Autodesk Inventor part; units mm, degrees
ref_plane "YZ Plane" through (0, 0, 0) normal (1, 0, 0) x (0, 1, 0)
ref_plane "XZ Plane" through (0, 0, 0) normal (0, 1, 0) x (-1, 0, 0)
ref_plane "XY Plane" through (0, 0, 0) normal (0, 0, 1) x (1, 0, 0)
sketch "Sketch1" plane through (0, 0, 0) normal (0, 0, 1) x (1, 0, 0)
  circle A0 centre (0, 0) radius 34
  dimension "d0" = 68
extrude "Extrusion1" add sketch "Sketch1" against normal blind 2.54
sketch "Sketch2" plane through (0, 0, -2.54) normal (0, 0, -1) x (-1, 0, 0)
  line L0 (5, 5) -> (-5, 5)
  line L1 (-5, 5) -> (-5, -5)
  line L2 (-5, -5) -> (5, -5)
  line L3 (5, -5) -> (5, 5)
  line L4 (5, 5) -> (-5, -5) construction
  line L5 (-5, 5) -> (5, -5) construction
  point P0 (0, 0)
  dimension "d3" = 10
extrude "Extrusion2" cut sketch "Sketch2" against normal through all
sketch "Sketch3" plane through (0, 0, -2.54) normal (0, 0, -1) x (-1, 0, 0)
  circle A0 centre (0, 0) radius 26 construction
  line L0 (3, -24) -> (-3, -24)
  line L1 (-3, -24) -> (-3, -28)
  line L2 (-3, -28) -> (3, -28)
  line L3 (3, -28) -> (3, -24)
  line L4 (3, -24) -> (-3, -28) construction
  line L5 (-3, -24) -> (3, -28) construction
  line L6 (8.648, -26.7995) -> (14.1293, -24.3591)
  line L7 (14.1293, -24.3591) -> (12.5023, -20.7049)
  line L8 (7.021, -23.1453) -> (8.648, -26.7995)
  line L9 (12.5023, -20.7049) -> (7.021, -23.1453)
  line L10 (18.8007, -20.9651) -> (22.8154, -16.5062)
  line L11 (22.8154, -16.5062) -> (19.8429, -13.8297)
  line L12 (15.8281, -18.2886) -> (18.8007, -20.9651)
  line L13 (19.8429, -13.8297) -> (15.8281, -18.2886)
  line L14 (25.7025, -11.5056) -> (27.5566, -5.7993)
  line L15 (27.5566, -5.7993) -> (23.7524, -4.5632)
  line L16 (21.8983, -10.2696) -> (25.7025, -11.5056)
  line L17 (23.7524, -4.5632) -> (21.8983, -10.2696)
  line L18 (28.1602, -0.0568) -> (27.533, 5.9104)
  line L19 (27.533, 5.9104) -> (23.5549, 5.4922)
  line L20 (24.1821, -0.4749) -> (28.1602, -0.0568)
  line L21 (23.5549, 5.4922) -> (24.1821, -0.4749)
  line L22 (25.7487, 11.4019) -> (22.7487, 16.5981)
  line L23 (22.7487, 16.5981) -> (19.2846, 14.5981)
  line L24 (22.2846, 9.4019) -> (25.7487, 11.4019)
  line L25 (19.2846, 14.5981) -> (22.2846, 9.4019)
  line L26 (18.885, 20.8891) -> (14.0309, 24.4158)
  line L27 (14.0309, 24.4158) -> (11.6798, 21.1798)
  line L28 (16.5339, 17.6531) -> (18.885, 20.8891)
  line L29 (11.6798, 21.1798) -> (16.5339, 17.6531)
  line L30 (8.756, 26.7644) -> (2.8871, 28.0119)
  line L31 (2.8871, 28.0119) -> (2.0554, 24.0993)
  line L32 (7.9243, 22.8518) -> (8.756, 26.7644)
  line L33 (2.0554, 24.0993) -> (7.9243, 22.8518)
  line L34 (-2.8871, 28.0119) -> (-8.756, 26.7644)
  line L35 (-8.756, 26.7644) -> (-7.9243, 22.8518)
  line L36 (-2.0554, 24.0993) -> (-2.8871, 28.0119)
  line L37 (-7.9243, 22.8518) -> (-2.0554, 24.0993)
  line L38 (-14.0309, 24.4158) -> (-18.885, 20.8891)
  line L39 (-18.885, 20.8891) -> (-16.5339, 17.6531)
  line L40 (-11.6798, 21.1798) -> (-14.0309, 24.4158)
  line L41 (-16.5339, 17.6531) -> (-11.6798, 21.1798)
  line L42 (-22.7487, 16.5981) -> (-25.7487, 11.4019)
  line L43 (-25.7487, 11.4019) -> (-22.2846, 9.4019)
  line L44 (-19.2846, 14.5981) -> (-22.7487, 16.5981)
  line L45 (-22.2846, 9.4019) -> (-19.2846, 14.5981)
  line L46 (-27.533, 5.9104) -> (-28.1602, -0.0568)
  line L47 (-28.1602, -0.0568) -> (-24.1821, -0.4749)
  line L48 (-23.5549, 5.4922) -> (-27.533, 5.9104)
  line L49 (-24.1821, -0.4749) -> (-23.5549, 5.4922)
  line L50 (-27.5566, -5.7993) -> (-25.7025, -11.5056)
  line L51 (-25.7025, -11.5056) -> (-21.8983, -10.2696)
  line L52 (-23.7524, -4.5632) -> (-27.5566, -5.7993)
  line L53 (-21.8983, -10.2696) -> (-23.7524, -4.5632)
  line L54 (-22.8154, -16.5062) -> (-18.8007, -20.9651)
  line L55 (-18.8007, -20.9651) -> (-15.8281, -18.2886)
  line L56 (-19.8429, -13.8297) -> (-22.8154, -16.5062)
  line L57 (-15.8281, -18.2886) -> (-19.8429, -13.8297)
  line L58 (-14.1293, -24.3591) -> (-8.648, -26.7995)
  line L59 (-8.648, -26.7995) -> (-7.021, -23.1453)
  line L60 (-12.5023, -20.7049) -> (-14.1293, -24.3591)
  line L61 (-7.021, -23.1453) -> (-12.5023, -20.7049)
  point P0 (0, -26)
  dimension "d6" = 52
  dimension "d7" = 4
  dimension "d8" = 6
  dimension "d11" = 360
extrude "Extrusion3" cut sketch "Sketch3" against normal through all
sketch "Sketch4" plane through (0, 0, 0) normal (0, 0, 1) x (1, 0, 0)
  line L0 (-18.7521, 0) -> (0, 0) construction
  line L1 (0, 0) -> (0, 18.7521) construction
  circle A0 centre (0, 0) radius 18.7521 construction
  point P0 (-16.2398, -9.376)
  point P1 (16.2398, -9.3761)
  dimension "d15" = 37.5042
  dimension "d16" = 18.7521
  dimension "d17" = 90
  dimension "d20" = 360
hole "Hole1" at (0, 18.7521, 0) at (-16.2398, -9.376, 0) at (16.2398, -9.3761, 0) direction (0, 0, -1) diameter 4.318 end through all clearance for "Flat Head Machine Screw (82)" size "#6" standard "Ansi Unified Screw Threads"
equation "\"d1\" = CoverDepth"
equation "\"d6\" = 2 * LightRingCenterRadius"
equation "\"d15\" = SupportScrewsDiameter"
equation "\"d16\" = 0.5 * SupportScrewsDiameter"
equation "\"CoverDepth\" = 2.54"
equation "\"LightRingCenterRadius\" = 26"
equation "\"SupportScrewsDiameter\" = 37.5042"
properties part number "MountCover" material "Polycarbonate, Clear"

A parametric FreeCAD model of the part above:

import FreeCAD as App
import Part
import Sketcher
from FreeCAD import Vector
Q = App.Units.Quantity

doc = App.newDocument("Part")
params = doc.addObject("Spreadsheet::Sheet", "Params")
for row, (alias, value) in enumerate([
    ("sketch1_diameter", "68 mm"),
    ("pad1_length", "2.54 mm"),
    ("sketch2_width", "10 mm"),
    ("sketch3_width", "6 mm"),
    ("sketch3_height", "4 mm"),
    ("sketch3_length", "4 mm"),
    ("sketch3_length2", "6 mm"),
    ("hole_diameter", "4.318 mm"),
], start=1):
    params.set(f"A{row}", alias)
    params.set(f"B{row}", "=" + value)
    params.setAlias(f"B{row}", alias)

body = doc.addObject("PartDesign::Body", "Body")

# Sketch on XY plane
sketch1 = doc.addObject("Sketcher::SketchObject", "Sketch")
body.addObject(sketch1)
sketch1.AttachmentSupport = (doc.XY_Plane, [""])
sketch1.MapMode = "FlatFace"
sketch1.addGeometry(Part.Circle(Vector(0, 0, 0), Vector(0, 0, 1), 34), False)
sketch1.addConstraint([
    Sketcher.Constraint("Coincident", 0, 3, -1, 1),
    Sketcher.Constraint("Diameter", 0, 68.0),
])
sketch1.setExpression("Constraints[1]", "Params.sketch1_diameter")
pad1 = doc.addObject("PartDesign::Pad", "Pad")
body.addObject(pad1)
pad1.Profile = sketch1
pad1.setExpression("Length", "Params.pad1_length")
pad1.Reversed = True

# Sketch on XY plane
sketch2 = doc.addObject("Sketcher::SketchObject", "Sketch001")
body.addObject(sketch2)
sketch2.AttachmentSupport = (doc.XY_Plane, [""])
sketch2.MapMode = "FlatFace"
sketch2.AttachmentOffset = App.Placement(Vector(0, 0, -2.54), App.Rotation())
sketch2.addGeometry([
    Part.LineSegment(Vector(-5, -5, 0), Vector(-5, 5, 0)),
    Part.LineSegment(Vector(-5, 5, 0), Vector(5, 5, 0)),
    Part.LineSegment(Vector(5, 5, 0), Vector(5, -5, 0)),
    Part.LineSegment(Vector(5, -5, 0), Vector(-5, -5, 0)),
], False)
sketch2.addConstraint([
    Sketcher.Constraint("Coincident", 0, 2, 1, 1),
    Sketcher.Constraint("Coincident", 1, 2, 2, 1),
    Sketcher.Constraint("Coincident", 2, 2, 3, 1),
    Sketcher.Constraint("Coincident", 3, 2, 0, 1),
    Sketcher.Constraint("Vertical", 0),
    Sketcher.Constraint("Horizontal", 1),
    Sketcher.Constraint("Vertical", 2),
    Sketcher.Constraint("Horizontal", 3),
    Sketcher.Constraint("Symmetric", 0, 2, 2, 2, -1, 1),
    Sketcher.Constraint("Equal", 3, 0),
    Sketcher.Constraint("DistanceX", 1, 1, 1, 2, 10.0),
])
sketch2.setExpression("Constraints[10]", "Params.sketch2_width")
pocket1 = doc.addObject("PartDesign::Pocket", "Pocket")
body.addObject(pocket1)
pocket1.Profile = sketch2
pocket1.Type = "ThroughAll"
pocket1.Reversed = True

# Sketch on XY plane
sketch3 = doc.addObject("Sketcher::SketchObject", "Sketch002")
body.addObject(sketch3)
sketch3.AttachmentSupport = (doc.XY_Plane, [""])
sketch3.MapMode = "FlatFace"
sketch3.AttachmentOffset = App.Placement(Vector(0, 0, -2.54), App.Rotation())
sketch3.addGeometry([
    Part.LineSegment(Vector(-3, -28, 0), Vector(-3, -24, 0)),  # 0
    Part.LineSegment(Vector(-3, -24, 0), Vector(3, -24, 0)),  # 1
    Part.LineSegment(Vector(3, -24, 0), Vector(3, -28, 0)),  # 2
    Part.LineSegment(Vector(3, -28, 0), Vector(-3, -28, 0)),  # 3
    Part.LineSegment(Vector(-7, -23.1, 0), Vector(-8.6, -26.8, 0)),  # 4
    Part.LineSegment(Vector(-8.6, -26.8, 0), Vector(-14.1, -24.4, 0)),  # 5
    Part.LineSegment(Vector(-14.1, -24.4, 0), Vector(-12.5, -20.7, 0)),  # 6
    Part.LineSegment(Vector(-12.5, -20.7, 0), Vector(-7, -23.1, 0)),  # 7
    Part.LineSegment(Vector(-15.8, -18.3, 0), Vector(-18.8, -21, 0)),  # 8
    Part.LineSegment(Vector(-18.8, -21, 0), Vector(-22.8, -16.5, 0)),  # 9
    Part.LineSegment(Vector(-22.8, -16.5, 0), Vector(-19.8, -13.8, 0)),  # 10
    Part.LineSegment(Vector(-19.8, -13.8, 0), Vector(-15.8, -18.3, 0)),  # 11
    Part.LineSegment(Vector(-21.9, -10.3, 0), Vector(-25.7, -11.5, 0)),  # 12
    Part.LineSegment(Vector(-25.7, -11.5, 0), Vector(-27.6, -5.8, 0)),  # 13
    Part.LineSegment(Vector(-27.6, -5.8, 0), Vector(-23.8, -4.6, 0)),  # 14
    Part.LineSegment(Vector(-23.8, -4.6, 0), Vector(-21.9, -10.3, 0)),  # 15
    Part.LineSegment(Vector(-24.2, -0.5, 0), Vector(-28.2, -0.1, 0)),  # 16
    Part.LineSegment(Vector(-28.2, -0.1, 0), Vector(-27.5, 5.9, 0)),  # 17
    Part.LineSegment(Vector(-27.5, 5.9, 0), Vector(-23.6, 5.5, 0)),  # 18
    Part.LineSegment(Vector(-23.6, 5.5, 0), Vector(-24.2, -0.5, 0)),  # 19
    Part.LineSegment(Vector(-22.3, 9.4, 0), Vector(-25.7, 11.4, 0)),  # 20
    Part.LineSegment(Vector(-25.7, 11.4, 0), Vector(-22.7, 16.6, 0)),  # 21
    Part.LineSegment(Vector(-22.7, 16.6, 0), Vector(-19.3, 14.6, 0)),  # 22
    Part.LineSegment(Vector(-19.3, 14.6, 0), Vector(-22.3, 9.4, 0)),  # 23
    Part.LineSegment(Vector(-16.5, 17.7, 0), Vector(-18.9, 20.9, 0)),  # 24
    Part.LineSegment(Vector(-18.9, 20.9, 0), Vector(-14, 24.4, 0)),  # 25
    Part.LineSegment(Vector(-14, 24.4, 0), Vector(-11.7, 21.2, 0)),  # 26
    Part.LineSegment(Vector(-11.7, 21.2, 0), Vector(-16.5, 17.7, 0)),  # 27
    Part.LineSegment(Vector(-7.9, 22.9, 0), Vector(-8.8, 26.8, 0)),  # 28
    Part.LineSegment(Vector(-8.8, 26.8, 0), Vector(-2.9, 28, 0)),  # 29
    Part.LineSegment(Vector(-2.9, 28, 0), Vector(-2.1, 24.1, 0)),  # 30
    Part.LineSegment(Vector(-2.1, 24.1, 0), Vector(-7.9, 22.9, 0)),  # 31
    Part.LineSegment(Vector(2.1, 24.1, 0), Vector(2.9, 28, 0)),  # 32
    Part.LineSegment(Vector(2.9, 28, 0), Vector(8.8, 26.8, 0)),  # 33
    Part.LineSegment(Vector(8.8, 26.8, 0), Vector(7.9, 22.9, 0)),  # 34
    Part.LineSegment(Vector(7.9, 22.9, 0), Vector(2.1, 24.1, 0)),  # 35
    Part.LineSegment(Vector(11.7, 21.2, 0), Vector(14, 24.4, 0)),  # 36
    Part.LineSegment(Vector(14, 24.4, 0), Vector(18.9, 20.9, 0)),  # 37
    Part.LineSegment(Vector(18.9, 20.9, 0), Vector(16.5, 17.7, 0)),  # 38
    Part.LineSegment(Vector(16.5, 17.7, 0), Vector(11.7, 21.2, 0)),  # 39
    Part.LineSegment(Vector(19.3, 14.6, 0), Vector(22.7, 16.6, 0)),  # 40
    Part.LineSegment(Vector(22.7, 16.6, 0), Vector(25.7, 11.4, 0)),  # 41
    Part.LineSegment(Vector(25.7, 11.4, 0), Vector(22.3, 9.4, 0)),  # 42
    Part.LineSegment(Vector(22.3, 9.4, 0), Vector(19.3, 14.6, 0)),  # 43
    Part.LineSegment(Vector(23.6, 5.5, 0), Vector(27.5, 5.9, 0)),  # 44
    Part.LineSegment(Vector(27.5, 5.9, 0), Vector(28.2, -0.1, 0)),  # 45
    Part.LineSegment(Vector(28.2, -0.1, 0), Vector(24.2, -0.5, 0)),  # 46
    Part.LineSegment(Vector(24.2, -0.5, 0), Vector(23.6, 5.5, 0)),  # 47
    Part.LineSegment(Vector(23.8, -4.6, 0), Vector(27.6, -5.8, 0)),  # 48
    Part.LineSegment(Vector(27.6, -5.8, 0), Vector(25.7, -11.5, 0)),  # 49
    Part.LineSegment(Vector(25.7, -11.5, 0), Vector(21.9, -10.3, 0)),  # 50
    Part.LineSegment(Vector(21.9, -10.3, 0), Vector(23.8, -4.6, 0)),  # 51
    Part.LineSegment(Vector(19.8, -13.8, 0), Vector(22.8, -16.5, 0)),  # 52
    Part.LineSegment(Vector(22.8, -16.5, 0), Vector(18.8, -21, 0)),  # 53
    Part.LineSegment(Vector(18.8, -21, 0), Vector(15.8, -18.3, 0)),  # 54
    Part.LineSegment(Vector(15.8, -18.3, 0), Vector(19.8, -13.8, 0)),  # 55
    Part.LineSegment(Vector(12.5, -20.7, 0), Vector(14.1, -24.4, 0)),  # 56
    Part.LineSegment(Vector(14.1, -24.4, 0), Vector(8.6, -26.8, 0)),  # 57
    Part.LineSegment(Vector(8.6, -26.8, 0), Vector(7, -23.1, 0)),  # 58
    Part.LineSegment(Vector(7, -23.1, 0), Vector(12.5, -20.7, 0)),  # 59
], False)
sketch3.addConstraint([
    Sketcher.Constraint("Coincident", 0, 2, 1, 1),
    Sketcher.Constraint("Coincident", 1, 2, 2, 1),
    Sketcher.Constraint("Coincident", 2, 2, 3, 1),
    Sketcher.Constraint("Coincident", 3, 2, 0, 1),
    Sketcher.Constraint("Coincident", 4, 2, 5, 1),
    Sketcher.Constraint("Coincident", 5, 2, 6, 1),
    Sketcher.Constraint("Coincident", 6, 2, 7, 1),
    Sketcher.Constraint("Coincident", 7, 2, 4, 1),
    Sketcher.Constraint("Coincident", 8, 2, 9, 1),
    Sketcher.Constraint("Coincident", 9, 2, 10, 1),
    Sketcher.Constraint("Coincident", 10, 2, 11, 1),
    Sketcher.Constraint("Coincident", 11, 2, 8, 1),
    Sketcher.Constraint("Coincident", 12, 2, 13, 1),
    Sketcher.Constraint("Coincident", 13, 2, 14, 1),
    Sketcher.Constraint("Coincident", 14, 2, 15, 1),
    Sketcher.Constraint("Coincident", 15, 2, 12, 1),
    Sketcher.Constraint("Coincident", 16, 2, 17, 1),
    Sketcher.Constraint("Coincident", 17, 2, 18, 1),
    Sketcher.Constraint("Coincident", 18, 2, 19, 1),
    Sketcher.Constraint("Coincident", 19, 2, 16, 1),
    Sketcher.Constraint("Coincident", 20, 2, 21, 1),
    Sketcher.Constraint("Coincident", 21, 2, 22, 1),
    Sketcher.Constraint("Coincident", 22, 2, 23, 1),
    Sketcher.Constraint("Coincident", 23, 2, 20, 1),
    Sketcher.Constraint("Coincident", 24, 2, 25, 1),
    Sketcher.Constraint("Coincident", 25, 2, 26, 1),
    Sketcher.Constraint("Coincident", 26, 2, 27, 1),
    Sketcher.Constraint("Coincident", 27, 2, 24, 1),
    Sketcher.Constraint("Coincident", 28, 2, 29, 1),
    Sketcher.Constraint("Coincident", 29, 2, 30, 1),
    Sketcher.Constraint("Coincident", 30, 2, 31, 1),
    Sketcher.Constraint("Coincident", 31, 2, 28, 1),
    Sketcher.Constraint("Coincident", 32, 2, 33, 1),
    Sketcher.Constraint("Coincident", 33, 2, 34, 1),
    Sketcher.Constraint("Coincident", 34, 2, 35, 1),
    Sketcher.Constraint("Coincident", 35, 2, 32, 1),
    Sketcher.Constraint("Coincident", 36, 2, 37, 1),
    Sketcher.Constraint("Coincident", 37, 2, 38, 1),
    Sketcher.Constraint("Coincident", 38, 2, 39, 1),
    Sketcher.Constraint("Coincident", 39, 2, 36, 1),
    Sketcher.Constraint("Coincident", 40, 2, 41, 1),
    Sketcher.Constraint("Coincident", 41, 2, 42, 1),
    Sketcher.Constraint("Coincident", 42, 2, 43, 1),
    Sketcher.Constraint("Coincident", 43, 2, 40, 1),
    Sketcher.Constraint("Coincident", 44, 2, 45, 1),
    Sketcher.Constraint("Coincident", 45, 2, 46, 1),
    Sketcher.Constraint("Coincident", 46, 2, 47, 1),
    Sketcher.Constraint("Coincident", 47, 2, 44, 1),
    Sketcher.Constraint("Coincident", 48, 2, 49, 1),
    Sketcher.Constraint("Coincident", 49, 2, 50, 1),
    Sketcher.Constraint("Coincident", 50, 2, 51, 1),
    Sketcher.Constraint("Coincident", 51, 2, 48, 1),
    Sketcher.Constraint("Coincident", 52, 2, 53, 1),
    Sketcher.Constraint("Coincident", 53, 2, 54, 1),
    Sketcher.Constraint("Coincident", 54, 2, 55, 1),
    Sketcher.Constraint("Coincident", 55, 2, 52, 1),
    Sketcher.Constraint("Coincident", 56, 2, 57, 1),
    Sketcher.Constraint("Coincident", 57, 2, 58, 1),
    Sketcher.Constraint("Coincident", 58, 2, 59, 1),
    Sketcher.Constraint("Coincident", 59, 2, 56, 1),
    Sketcher.Constraint("Vertical", 0),
    Sketcher.Constraint("Horizontal", 1),
    Sketcher.Constraint("Vertical", 2),
    Sketcher.Constraint("Horizontal", 3),
    Sketcher.Constraint("Symmetric", 29, 2, 32, 2, -2),
    Sketcher.Constraint("Symmetric", 28, 2, 33, 2, -2),
    Sketcher.Constraint("Symmetric", 31, 2, 34, 2, -2),
    Sketcher.Constraint("Symmetric", 30, 2, 35, 2, -2),
    Sketcher.Constraint("Symmetric", 25, 2, 36, 2, -2),
    Sketcher.Constraint("Symmetric", 24, 2, 37, 2, -2),
    Sketcher.Constraint("Symmetric", 27, 2, 38, 2, -2),
    Sketcher.Constraint("Symmetric", 26, 2, 39, 2, -2),
    Sketcher.Constraint("Symmetric", 21, 2, 40, 2, -2),
    Sketcher.Constraint("Symmetric", 20, 2, 41, 2, -2),
    Sketcher.Constraint("Symmetric", 23, 2, 42, 2, -2),
    Sketcher.Constraint("Symmetric", 22, 2, 43, 2, -2),
    Sketcher.Constraint("Symmetric", 17, 2, 44, 2, -2),
    Sketcher.Constraint("Symmetric", 16, 2, 45, 2, -2),
    Sketcher.Constraint("Symmetric", 19, 2, 46, 2, -2),
    Sketcher.Constraint("Symmetric", 18, 2, 47, 2, -2),
    Sketcher.Constraint("Symmetric", 13, 2, 48, 2, -2),
    Sketcher.Constraint("Symmetric", 12, 2, 49, 2, -2),
    Sketcher.Constraint("Symmetric", 15, 2, 50, 2, -2),
    Sketcher.Constraint("Symmetric", 14, 2, 51, 2, -2),
    Sketcher.Constraint("Symmetric", 9, 2, 52, 2, -2),
    Sketcher.Constraint("Symmetric", 8, 2, 53, 2, -2),
    Sketcher.Constraint("Symmetric", 11, 2, 54, 2, -2),
    Sketcher.Constraint("Symmetric", 10, 2, 55, 2, -2),
    Sketcher.Constraint("Symmetric", 5, 2, 56, 2, -2),
    Sketcher.Constraint("Symmetric", 4, 2, 57, 2, -2),
    Sketcher.Constraint("Symmetric", 7, 2, 58, 2, -2),
    Sketcher.Constraint("Symmetric", 6, 2, 59, 2, -2),
    Sketcher.Constraint("Perpendicular", 4, 5),
    Sketcher.Constraint("Perpendicular", 5, 6),
    Sketcher.Constraint("Perpendicular", 6, 7),
    Sketcher.Constraint("Perpendicular", 8, 9),
    Sketcher.Constraint("Perpendicular", 9, 10),
    Sketcher.Constraint("Perpendicular", 10, 11),
    Sketcher.Constraint("Perpendicular", 12, 13),
    Sketcher.Constraint("Perpendicular", 13, 14),
    Sketcher.Constraint("Perpendicular", 14, 15),
    Sketcher.Constraint("Perpendicular", 16, 17),
    Sketcher.Constraint("Perpendicular", 17, 18),
    Sketcher.Constraint("Perpendicular", 18, 19),
    Sketcher.Constraint("Perpendicular", 20, 21),
    Sketcher.Constraint("Perpendicular", 21, 22),
    Sketcher.Constraint("Perpendicular", 22, 23),
    Sketcher.Constraint("Perpendicular", 24, 25),
    Sketcher.Constraint("Perpendicular", 25, 26),
    Sketcher.Constraint("Perpendicular", 26, 27),
    Sketcher.Constraint("Perpendicular", 28, 29),
    Sketcher.Constraint("Perpendicular", 29, 30),
    Sketcher.Constraint("Perpendicular", 30, 31),
    Sketcher.Constraint("Equal", 6, 8),
    Sketcher.Constraint("Equal", 7, 9),
    Sketcher.Constraint("Equal", 10, 12),
    Sketcher.Constraint("Equal", 11, 13),
    Sketcher.Constraint("Equal", 14, 16),
    Sketcher.Constraint("Equal", 15, 17),
    Sketcher.Constraint("Equal", 18, 20),
    Sketcher.Constraint("Equal", 19, 21),
    Sketcher.Constraint("Equal", 22, 24),
    Sketcher.Constraint("Equal", 23, 25),
    Sketcher.Constraint("Equal", 26, 28),
    Sketcher.Constraint("Equal", 27, 29),
    Sketcher.Constraint("DistanceX", 1, 1, 1, 2, 6.0),
    Sketcher.Constraint("DistanceY", 0, 1, 0, 2, 4.0),
    Sketcher.Constraint("Distance", 4, 4.0),
    Sketcher.Constraint("Distance", 5, 6.0),
    Sketcher.Constraint("Angle", 4, Q("-114.0006 deg")),
    Sketcher.Constraint("Angle", 8, Q("-138.0004 deg")),
    Sketcher.Constraint("Angle", 12, Q("-162.0008 deg")),
    Sketcher.Constraint("Angle", 16, Q("174.0002 deg")),
    Sketcher.Constraint("Angle", 20, Q("150 deg")),
    Sketcher.Constraint("Angle", 24, Q("126 deg")),
    Sketcher.Constraint("Angle", 28, Q("102.0007 deg")),
    Sketcher.Constraint("DistanceX", 0, 2, -1, 1, 3.0),
    Sketcher.Constraint("DistanceY", 0, 2, -1, 1, 24.0),
    Sketcher.Constraint("DistanceY", 10, 2, 15, 2, 3.56),
    Sketcher.Constraint("DistanceY", 15, 2, 17, 2, 16.18),
    Sketcher.Constraint("DistanceX", 18, 2, 24, 2, 4.67),
    Sketcher.Constraint("DistanceX", 57, 2, 54, 2, 7.18),
    Sketcher.Constraint("DistanceX", 4, 2, -1, 1, 8.648),
    Sketcher.Constraint("DistanceY", 5, 2, -1, 1, 24.359),
    Sketcher.Constraint("DistanceY", 8, 2, -1, 1, 20.965),
    Sketcher.Constraint("DistanceX", 17, 2, -1, 1, 27.533),
    Sketcher.Constraint("DistanceY", -1, 1, 20, 2, 11.402),
    Sketcher.Constraint("DistanceY", -1, 1, 24, 2, 20.889),
    Sketcher.Constraint("DistanceX", 28, 2, -1, 1, 8.756),
    Sketcher.Constraint("DistanceY", -1, 1, 29, 2, 28.012),
    Sketcher.Constraint("DistanceX", 12, 2, 9, 2, 2.887),
    Sketcher.Constraint("DistanceX", 21, 2, 26, 2, 11.069),
])
sketch3.setExpression("Constraints[125]", "Params.sketch3_width")
sketch3.setExpression("Constraints[126]", "Params.sketch3_height")
sketch3.setExpression("Constraints[127]", "Params.sketch3_length")
sketch3.setExpression("Constraints[128]", "Params.sketch3_length2")
pocket2 = doc.addObject("PartDesign::Pocket", "Pocket001")
body.addObject(pocket2)
pocket2.Profile = sketch3
pocket2.Type = "ThroughAll"
pocket2.Reversed = True

# Sketch on XY plane
sketch4 = doc.addObject("Sketcher::SketchObject", "Sketch003")
body.addObject(sketch4)
sketch4.AttachmentSupport = (doc.XY_Plane, [""])
sketch4.MapMode = "FlatFace"
sketch4.addGeometry([
    Part.Circle(Vector(0, 18.8, 0), Vector(0, 0, 1), 2.2),
    Part.Circle(Vector(-16.2, -9.4, 0), Vector(0, 0, 1), 2.2),
    Part.Circle(Vector(16.2, -9.4, 0), Vector(0, 0, 1), 2.2),
], False)
sketch4.addConstraint([
    Sketcher.Constraint("Equal", 0, 1),
    Sketcher.Constraint("Equal", 1, 2),
    Sketcher.Constraint("Symmetric", 1, 3, 2, 3, -2),
    Sketcher.Constraint("PointOnObject", 0, 3, -2),
    Sketcher.Constraint("Diameter", 0, 4.318),
    Sketcher.Constraint("DistanceY", -1, 1, 0, 3, 18.752),
    Sketcher.Constraint("DistanceY", 1, 3, -1, 1, 9.376),
    Sketcher.Constraint("DistanceX", 1, 3, -1, 1, 16.2398),
])
doc.recompute()
hole = doc.addObject("PartDesign::Hole", "Hole")
body.addObject(hole)
hole.Profile = sketch4
hole.ThreadType = "None"
hole.setExpression("Diameter", "Params.hole_diameter")
hole.DepthType = "ThroughAll"

doc.recompute()
